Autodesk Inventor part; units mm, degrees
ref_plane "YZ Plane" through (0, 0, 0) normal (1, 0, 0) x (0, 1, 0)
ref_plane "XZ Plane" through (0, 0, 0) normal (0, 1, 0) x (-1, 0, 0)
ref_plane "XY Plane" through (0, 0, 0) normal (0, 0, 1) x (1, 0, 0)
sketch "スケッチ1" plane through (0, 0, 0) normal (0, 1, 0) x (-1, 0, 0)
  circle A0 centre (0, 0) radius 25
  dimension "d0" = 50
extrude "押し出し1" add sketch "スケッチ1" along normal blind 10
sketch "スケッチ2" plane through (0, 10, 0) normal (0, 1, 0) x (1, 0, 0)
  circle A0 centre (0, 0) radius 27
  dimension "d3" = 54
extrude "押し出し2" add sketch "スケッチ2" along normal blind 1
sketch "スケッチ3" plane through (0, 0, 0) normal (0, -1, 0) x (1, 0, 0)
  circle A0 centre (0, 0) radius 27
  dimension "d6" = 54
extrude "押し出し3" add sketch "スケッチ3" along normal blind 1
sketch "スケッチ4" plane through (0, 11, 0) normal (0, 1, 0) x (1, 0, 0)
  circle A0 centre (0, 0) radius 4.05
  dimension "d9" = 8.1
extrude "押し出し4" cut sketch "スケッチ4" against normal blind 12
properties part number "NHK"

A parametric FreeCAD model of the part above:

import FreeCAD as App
import Part
import Sketcher
Q = App.Units.Quantity

doc = App.newDocument("Part")
params = doc.addObject("Spreadsheet::Sheet", "Params")
for row, (alias, value) in enumerate([
    ("sketch1_diameter", "50 mm"),
    ("pad1_length", "10 mm"),
    ("sketch2_diameter", "54 mm"),
    ("pad2_length", "1 mm"),
    ("sketch3_diameter", "54 mm"),
    ("pad3_length", "1 mm"),
    ("sketch4_diameter", "8.1 mm"),
    ("pocket1_length", "12 mm"),
], start=1):
    params.set(f"A{row}", alias)
    params.set(f"B{row}", "=" + value)
    params.setAlias(f"B{row}", alias)

body = doc.addObject("PartDesign::Body", "Body")

# Sketch on XZ plane
sketch1 = body.newObject("Sketcher::SketchObject", "Sketch")
sketch1.AttachmentSupport = (doc.getObject("XZ_Plane"), [""])
sketch1.MapMode = "FlatFace"
sketch1.addGeometry(Part.Circle(App.Vector(0, 0, 0), App.Vector(0, 0, 1), 25), False)
sketch1.addConstraint(Sketcher.Constraint("Coincident", 0, 3, -1, 1))
sketch1.addConstraint(Sketcher.Constraint("Diameter", 0, Q("50 mm")))
sketch1.setExpression("Constraints[1]", "Params.sketch1_diameter")
pad1 = body.newObject("PartDesign::Pad", "Pad")
pad1.Profile = sketch1
pad1.setExpression("Length", "Params.pad1_length")
pad1.Reversed = True

# Sketch on XZ plane
sketch2 = body.newObject("Sketcher::SketchObject", "Sketch001")
sketch2.AttachmentSupport = (doc.getObject("XZ_Plane"), [""])
sketch2.MapMode = "FlatFace"
sketch2.AttachmentOffset = App.Placement(App.Vector(0, 0, -10), App.Rotation())
sketch2.addGeometry(Part.Circle(App.Vector(0, 0, 0), App.Vector(0, 0, 1), 27), False)
sketch2.addConstraint(Sketcher.Constraint("Coincident", 0, 3, -1, 1))
sketch2.addConstraint(Sketcher.Constraint("Diameter", 0, Q("54 mm")))
sketch2.setExpression("Constraints[1]", "Params.sketch2_diameter")
pad2 = body.newObject("PartDesign::Pad", "Pad001")
pad2.Profile = sketch2
pad2.setExpression("Length", "Params.pad2_length")
pad2.Reversed = True

# Sketch on XZ plane
sketch3 = body.newObject("Sketcher::SketchObject", "Sketch002")
sketch3.AttachmentSupport = (doc.getObject("XZ_Plane"), [""])
sketch3.MapMode = "FlatFace"
sketch3.addGeometry(Part.Circle(App.Vector(0, 0, 0), App.Vector(0, 0, 1), 27), False)
sketch3.addConstraint(Sketcher.Constraint("Coincident", 0, 3, -1, 1))
sketch3.addConstraint(Sketcher.Constraint("Diameter", 0, Q("54 mm")))
sketch3.setExpression("Constraints[1]", "Params.sketch3_diameter")
pad3 = body.newObject("PartDesign::Pad", "Pad002")
pad3.Profile = sketch3
pad3.setExpression("Length", "Params.pad3_length")

# Sketch on XZ plane
sketch4 = body.newObject("Sketcher::SketchObject", "Sketch003")
sketch4.AttachmentSupport = (doc.getObject("XZ_Plane"), [""])
sketch4.MapMode = "FlatFace"
sketch4.AttachmentOffset = App.Placement(App.Vector(0, 0, -11), App.Rotation())
sketch4.addGeometry(Part.Circle(App.Vector(0, 0, 0), App.Vector(0, 0, 1), 4), False)
sketch4.addConstraint(Sketcher.Constraint("Coincident", 0, 3, -1, 1))
sketch4.addConstraint(Sketcher.Constraint("Diameter", 0, Q("8.1 mm")))
sketch4.setExpression("Constraints[1]", "Params.sketch4_diameter")
pocket1 = body.newObject("PartDesign::Pocket", "Pocket")
pocket1.Profile = sketch4
pocket1.setExpression("Length", "Params.pocket1_length")
pocket1.Reversed = True

doc.recompute()
